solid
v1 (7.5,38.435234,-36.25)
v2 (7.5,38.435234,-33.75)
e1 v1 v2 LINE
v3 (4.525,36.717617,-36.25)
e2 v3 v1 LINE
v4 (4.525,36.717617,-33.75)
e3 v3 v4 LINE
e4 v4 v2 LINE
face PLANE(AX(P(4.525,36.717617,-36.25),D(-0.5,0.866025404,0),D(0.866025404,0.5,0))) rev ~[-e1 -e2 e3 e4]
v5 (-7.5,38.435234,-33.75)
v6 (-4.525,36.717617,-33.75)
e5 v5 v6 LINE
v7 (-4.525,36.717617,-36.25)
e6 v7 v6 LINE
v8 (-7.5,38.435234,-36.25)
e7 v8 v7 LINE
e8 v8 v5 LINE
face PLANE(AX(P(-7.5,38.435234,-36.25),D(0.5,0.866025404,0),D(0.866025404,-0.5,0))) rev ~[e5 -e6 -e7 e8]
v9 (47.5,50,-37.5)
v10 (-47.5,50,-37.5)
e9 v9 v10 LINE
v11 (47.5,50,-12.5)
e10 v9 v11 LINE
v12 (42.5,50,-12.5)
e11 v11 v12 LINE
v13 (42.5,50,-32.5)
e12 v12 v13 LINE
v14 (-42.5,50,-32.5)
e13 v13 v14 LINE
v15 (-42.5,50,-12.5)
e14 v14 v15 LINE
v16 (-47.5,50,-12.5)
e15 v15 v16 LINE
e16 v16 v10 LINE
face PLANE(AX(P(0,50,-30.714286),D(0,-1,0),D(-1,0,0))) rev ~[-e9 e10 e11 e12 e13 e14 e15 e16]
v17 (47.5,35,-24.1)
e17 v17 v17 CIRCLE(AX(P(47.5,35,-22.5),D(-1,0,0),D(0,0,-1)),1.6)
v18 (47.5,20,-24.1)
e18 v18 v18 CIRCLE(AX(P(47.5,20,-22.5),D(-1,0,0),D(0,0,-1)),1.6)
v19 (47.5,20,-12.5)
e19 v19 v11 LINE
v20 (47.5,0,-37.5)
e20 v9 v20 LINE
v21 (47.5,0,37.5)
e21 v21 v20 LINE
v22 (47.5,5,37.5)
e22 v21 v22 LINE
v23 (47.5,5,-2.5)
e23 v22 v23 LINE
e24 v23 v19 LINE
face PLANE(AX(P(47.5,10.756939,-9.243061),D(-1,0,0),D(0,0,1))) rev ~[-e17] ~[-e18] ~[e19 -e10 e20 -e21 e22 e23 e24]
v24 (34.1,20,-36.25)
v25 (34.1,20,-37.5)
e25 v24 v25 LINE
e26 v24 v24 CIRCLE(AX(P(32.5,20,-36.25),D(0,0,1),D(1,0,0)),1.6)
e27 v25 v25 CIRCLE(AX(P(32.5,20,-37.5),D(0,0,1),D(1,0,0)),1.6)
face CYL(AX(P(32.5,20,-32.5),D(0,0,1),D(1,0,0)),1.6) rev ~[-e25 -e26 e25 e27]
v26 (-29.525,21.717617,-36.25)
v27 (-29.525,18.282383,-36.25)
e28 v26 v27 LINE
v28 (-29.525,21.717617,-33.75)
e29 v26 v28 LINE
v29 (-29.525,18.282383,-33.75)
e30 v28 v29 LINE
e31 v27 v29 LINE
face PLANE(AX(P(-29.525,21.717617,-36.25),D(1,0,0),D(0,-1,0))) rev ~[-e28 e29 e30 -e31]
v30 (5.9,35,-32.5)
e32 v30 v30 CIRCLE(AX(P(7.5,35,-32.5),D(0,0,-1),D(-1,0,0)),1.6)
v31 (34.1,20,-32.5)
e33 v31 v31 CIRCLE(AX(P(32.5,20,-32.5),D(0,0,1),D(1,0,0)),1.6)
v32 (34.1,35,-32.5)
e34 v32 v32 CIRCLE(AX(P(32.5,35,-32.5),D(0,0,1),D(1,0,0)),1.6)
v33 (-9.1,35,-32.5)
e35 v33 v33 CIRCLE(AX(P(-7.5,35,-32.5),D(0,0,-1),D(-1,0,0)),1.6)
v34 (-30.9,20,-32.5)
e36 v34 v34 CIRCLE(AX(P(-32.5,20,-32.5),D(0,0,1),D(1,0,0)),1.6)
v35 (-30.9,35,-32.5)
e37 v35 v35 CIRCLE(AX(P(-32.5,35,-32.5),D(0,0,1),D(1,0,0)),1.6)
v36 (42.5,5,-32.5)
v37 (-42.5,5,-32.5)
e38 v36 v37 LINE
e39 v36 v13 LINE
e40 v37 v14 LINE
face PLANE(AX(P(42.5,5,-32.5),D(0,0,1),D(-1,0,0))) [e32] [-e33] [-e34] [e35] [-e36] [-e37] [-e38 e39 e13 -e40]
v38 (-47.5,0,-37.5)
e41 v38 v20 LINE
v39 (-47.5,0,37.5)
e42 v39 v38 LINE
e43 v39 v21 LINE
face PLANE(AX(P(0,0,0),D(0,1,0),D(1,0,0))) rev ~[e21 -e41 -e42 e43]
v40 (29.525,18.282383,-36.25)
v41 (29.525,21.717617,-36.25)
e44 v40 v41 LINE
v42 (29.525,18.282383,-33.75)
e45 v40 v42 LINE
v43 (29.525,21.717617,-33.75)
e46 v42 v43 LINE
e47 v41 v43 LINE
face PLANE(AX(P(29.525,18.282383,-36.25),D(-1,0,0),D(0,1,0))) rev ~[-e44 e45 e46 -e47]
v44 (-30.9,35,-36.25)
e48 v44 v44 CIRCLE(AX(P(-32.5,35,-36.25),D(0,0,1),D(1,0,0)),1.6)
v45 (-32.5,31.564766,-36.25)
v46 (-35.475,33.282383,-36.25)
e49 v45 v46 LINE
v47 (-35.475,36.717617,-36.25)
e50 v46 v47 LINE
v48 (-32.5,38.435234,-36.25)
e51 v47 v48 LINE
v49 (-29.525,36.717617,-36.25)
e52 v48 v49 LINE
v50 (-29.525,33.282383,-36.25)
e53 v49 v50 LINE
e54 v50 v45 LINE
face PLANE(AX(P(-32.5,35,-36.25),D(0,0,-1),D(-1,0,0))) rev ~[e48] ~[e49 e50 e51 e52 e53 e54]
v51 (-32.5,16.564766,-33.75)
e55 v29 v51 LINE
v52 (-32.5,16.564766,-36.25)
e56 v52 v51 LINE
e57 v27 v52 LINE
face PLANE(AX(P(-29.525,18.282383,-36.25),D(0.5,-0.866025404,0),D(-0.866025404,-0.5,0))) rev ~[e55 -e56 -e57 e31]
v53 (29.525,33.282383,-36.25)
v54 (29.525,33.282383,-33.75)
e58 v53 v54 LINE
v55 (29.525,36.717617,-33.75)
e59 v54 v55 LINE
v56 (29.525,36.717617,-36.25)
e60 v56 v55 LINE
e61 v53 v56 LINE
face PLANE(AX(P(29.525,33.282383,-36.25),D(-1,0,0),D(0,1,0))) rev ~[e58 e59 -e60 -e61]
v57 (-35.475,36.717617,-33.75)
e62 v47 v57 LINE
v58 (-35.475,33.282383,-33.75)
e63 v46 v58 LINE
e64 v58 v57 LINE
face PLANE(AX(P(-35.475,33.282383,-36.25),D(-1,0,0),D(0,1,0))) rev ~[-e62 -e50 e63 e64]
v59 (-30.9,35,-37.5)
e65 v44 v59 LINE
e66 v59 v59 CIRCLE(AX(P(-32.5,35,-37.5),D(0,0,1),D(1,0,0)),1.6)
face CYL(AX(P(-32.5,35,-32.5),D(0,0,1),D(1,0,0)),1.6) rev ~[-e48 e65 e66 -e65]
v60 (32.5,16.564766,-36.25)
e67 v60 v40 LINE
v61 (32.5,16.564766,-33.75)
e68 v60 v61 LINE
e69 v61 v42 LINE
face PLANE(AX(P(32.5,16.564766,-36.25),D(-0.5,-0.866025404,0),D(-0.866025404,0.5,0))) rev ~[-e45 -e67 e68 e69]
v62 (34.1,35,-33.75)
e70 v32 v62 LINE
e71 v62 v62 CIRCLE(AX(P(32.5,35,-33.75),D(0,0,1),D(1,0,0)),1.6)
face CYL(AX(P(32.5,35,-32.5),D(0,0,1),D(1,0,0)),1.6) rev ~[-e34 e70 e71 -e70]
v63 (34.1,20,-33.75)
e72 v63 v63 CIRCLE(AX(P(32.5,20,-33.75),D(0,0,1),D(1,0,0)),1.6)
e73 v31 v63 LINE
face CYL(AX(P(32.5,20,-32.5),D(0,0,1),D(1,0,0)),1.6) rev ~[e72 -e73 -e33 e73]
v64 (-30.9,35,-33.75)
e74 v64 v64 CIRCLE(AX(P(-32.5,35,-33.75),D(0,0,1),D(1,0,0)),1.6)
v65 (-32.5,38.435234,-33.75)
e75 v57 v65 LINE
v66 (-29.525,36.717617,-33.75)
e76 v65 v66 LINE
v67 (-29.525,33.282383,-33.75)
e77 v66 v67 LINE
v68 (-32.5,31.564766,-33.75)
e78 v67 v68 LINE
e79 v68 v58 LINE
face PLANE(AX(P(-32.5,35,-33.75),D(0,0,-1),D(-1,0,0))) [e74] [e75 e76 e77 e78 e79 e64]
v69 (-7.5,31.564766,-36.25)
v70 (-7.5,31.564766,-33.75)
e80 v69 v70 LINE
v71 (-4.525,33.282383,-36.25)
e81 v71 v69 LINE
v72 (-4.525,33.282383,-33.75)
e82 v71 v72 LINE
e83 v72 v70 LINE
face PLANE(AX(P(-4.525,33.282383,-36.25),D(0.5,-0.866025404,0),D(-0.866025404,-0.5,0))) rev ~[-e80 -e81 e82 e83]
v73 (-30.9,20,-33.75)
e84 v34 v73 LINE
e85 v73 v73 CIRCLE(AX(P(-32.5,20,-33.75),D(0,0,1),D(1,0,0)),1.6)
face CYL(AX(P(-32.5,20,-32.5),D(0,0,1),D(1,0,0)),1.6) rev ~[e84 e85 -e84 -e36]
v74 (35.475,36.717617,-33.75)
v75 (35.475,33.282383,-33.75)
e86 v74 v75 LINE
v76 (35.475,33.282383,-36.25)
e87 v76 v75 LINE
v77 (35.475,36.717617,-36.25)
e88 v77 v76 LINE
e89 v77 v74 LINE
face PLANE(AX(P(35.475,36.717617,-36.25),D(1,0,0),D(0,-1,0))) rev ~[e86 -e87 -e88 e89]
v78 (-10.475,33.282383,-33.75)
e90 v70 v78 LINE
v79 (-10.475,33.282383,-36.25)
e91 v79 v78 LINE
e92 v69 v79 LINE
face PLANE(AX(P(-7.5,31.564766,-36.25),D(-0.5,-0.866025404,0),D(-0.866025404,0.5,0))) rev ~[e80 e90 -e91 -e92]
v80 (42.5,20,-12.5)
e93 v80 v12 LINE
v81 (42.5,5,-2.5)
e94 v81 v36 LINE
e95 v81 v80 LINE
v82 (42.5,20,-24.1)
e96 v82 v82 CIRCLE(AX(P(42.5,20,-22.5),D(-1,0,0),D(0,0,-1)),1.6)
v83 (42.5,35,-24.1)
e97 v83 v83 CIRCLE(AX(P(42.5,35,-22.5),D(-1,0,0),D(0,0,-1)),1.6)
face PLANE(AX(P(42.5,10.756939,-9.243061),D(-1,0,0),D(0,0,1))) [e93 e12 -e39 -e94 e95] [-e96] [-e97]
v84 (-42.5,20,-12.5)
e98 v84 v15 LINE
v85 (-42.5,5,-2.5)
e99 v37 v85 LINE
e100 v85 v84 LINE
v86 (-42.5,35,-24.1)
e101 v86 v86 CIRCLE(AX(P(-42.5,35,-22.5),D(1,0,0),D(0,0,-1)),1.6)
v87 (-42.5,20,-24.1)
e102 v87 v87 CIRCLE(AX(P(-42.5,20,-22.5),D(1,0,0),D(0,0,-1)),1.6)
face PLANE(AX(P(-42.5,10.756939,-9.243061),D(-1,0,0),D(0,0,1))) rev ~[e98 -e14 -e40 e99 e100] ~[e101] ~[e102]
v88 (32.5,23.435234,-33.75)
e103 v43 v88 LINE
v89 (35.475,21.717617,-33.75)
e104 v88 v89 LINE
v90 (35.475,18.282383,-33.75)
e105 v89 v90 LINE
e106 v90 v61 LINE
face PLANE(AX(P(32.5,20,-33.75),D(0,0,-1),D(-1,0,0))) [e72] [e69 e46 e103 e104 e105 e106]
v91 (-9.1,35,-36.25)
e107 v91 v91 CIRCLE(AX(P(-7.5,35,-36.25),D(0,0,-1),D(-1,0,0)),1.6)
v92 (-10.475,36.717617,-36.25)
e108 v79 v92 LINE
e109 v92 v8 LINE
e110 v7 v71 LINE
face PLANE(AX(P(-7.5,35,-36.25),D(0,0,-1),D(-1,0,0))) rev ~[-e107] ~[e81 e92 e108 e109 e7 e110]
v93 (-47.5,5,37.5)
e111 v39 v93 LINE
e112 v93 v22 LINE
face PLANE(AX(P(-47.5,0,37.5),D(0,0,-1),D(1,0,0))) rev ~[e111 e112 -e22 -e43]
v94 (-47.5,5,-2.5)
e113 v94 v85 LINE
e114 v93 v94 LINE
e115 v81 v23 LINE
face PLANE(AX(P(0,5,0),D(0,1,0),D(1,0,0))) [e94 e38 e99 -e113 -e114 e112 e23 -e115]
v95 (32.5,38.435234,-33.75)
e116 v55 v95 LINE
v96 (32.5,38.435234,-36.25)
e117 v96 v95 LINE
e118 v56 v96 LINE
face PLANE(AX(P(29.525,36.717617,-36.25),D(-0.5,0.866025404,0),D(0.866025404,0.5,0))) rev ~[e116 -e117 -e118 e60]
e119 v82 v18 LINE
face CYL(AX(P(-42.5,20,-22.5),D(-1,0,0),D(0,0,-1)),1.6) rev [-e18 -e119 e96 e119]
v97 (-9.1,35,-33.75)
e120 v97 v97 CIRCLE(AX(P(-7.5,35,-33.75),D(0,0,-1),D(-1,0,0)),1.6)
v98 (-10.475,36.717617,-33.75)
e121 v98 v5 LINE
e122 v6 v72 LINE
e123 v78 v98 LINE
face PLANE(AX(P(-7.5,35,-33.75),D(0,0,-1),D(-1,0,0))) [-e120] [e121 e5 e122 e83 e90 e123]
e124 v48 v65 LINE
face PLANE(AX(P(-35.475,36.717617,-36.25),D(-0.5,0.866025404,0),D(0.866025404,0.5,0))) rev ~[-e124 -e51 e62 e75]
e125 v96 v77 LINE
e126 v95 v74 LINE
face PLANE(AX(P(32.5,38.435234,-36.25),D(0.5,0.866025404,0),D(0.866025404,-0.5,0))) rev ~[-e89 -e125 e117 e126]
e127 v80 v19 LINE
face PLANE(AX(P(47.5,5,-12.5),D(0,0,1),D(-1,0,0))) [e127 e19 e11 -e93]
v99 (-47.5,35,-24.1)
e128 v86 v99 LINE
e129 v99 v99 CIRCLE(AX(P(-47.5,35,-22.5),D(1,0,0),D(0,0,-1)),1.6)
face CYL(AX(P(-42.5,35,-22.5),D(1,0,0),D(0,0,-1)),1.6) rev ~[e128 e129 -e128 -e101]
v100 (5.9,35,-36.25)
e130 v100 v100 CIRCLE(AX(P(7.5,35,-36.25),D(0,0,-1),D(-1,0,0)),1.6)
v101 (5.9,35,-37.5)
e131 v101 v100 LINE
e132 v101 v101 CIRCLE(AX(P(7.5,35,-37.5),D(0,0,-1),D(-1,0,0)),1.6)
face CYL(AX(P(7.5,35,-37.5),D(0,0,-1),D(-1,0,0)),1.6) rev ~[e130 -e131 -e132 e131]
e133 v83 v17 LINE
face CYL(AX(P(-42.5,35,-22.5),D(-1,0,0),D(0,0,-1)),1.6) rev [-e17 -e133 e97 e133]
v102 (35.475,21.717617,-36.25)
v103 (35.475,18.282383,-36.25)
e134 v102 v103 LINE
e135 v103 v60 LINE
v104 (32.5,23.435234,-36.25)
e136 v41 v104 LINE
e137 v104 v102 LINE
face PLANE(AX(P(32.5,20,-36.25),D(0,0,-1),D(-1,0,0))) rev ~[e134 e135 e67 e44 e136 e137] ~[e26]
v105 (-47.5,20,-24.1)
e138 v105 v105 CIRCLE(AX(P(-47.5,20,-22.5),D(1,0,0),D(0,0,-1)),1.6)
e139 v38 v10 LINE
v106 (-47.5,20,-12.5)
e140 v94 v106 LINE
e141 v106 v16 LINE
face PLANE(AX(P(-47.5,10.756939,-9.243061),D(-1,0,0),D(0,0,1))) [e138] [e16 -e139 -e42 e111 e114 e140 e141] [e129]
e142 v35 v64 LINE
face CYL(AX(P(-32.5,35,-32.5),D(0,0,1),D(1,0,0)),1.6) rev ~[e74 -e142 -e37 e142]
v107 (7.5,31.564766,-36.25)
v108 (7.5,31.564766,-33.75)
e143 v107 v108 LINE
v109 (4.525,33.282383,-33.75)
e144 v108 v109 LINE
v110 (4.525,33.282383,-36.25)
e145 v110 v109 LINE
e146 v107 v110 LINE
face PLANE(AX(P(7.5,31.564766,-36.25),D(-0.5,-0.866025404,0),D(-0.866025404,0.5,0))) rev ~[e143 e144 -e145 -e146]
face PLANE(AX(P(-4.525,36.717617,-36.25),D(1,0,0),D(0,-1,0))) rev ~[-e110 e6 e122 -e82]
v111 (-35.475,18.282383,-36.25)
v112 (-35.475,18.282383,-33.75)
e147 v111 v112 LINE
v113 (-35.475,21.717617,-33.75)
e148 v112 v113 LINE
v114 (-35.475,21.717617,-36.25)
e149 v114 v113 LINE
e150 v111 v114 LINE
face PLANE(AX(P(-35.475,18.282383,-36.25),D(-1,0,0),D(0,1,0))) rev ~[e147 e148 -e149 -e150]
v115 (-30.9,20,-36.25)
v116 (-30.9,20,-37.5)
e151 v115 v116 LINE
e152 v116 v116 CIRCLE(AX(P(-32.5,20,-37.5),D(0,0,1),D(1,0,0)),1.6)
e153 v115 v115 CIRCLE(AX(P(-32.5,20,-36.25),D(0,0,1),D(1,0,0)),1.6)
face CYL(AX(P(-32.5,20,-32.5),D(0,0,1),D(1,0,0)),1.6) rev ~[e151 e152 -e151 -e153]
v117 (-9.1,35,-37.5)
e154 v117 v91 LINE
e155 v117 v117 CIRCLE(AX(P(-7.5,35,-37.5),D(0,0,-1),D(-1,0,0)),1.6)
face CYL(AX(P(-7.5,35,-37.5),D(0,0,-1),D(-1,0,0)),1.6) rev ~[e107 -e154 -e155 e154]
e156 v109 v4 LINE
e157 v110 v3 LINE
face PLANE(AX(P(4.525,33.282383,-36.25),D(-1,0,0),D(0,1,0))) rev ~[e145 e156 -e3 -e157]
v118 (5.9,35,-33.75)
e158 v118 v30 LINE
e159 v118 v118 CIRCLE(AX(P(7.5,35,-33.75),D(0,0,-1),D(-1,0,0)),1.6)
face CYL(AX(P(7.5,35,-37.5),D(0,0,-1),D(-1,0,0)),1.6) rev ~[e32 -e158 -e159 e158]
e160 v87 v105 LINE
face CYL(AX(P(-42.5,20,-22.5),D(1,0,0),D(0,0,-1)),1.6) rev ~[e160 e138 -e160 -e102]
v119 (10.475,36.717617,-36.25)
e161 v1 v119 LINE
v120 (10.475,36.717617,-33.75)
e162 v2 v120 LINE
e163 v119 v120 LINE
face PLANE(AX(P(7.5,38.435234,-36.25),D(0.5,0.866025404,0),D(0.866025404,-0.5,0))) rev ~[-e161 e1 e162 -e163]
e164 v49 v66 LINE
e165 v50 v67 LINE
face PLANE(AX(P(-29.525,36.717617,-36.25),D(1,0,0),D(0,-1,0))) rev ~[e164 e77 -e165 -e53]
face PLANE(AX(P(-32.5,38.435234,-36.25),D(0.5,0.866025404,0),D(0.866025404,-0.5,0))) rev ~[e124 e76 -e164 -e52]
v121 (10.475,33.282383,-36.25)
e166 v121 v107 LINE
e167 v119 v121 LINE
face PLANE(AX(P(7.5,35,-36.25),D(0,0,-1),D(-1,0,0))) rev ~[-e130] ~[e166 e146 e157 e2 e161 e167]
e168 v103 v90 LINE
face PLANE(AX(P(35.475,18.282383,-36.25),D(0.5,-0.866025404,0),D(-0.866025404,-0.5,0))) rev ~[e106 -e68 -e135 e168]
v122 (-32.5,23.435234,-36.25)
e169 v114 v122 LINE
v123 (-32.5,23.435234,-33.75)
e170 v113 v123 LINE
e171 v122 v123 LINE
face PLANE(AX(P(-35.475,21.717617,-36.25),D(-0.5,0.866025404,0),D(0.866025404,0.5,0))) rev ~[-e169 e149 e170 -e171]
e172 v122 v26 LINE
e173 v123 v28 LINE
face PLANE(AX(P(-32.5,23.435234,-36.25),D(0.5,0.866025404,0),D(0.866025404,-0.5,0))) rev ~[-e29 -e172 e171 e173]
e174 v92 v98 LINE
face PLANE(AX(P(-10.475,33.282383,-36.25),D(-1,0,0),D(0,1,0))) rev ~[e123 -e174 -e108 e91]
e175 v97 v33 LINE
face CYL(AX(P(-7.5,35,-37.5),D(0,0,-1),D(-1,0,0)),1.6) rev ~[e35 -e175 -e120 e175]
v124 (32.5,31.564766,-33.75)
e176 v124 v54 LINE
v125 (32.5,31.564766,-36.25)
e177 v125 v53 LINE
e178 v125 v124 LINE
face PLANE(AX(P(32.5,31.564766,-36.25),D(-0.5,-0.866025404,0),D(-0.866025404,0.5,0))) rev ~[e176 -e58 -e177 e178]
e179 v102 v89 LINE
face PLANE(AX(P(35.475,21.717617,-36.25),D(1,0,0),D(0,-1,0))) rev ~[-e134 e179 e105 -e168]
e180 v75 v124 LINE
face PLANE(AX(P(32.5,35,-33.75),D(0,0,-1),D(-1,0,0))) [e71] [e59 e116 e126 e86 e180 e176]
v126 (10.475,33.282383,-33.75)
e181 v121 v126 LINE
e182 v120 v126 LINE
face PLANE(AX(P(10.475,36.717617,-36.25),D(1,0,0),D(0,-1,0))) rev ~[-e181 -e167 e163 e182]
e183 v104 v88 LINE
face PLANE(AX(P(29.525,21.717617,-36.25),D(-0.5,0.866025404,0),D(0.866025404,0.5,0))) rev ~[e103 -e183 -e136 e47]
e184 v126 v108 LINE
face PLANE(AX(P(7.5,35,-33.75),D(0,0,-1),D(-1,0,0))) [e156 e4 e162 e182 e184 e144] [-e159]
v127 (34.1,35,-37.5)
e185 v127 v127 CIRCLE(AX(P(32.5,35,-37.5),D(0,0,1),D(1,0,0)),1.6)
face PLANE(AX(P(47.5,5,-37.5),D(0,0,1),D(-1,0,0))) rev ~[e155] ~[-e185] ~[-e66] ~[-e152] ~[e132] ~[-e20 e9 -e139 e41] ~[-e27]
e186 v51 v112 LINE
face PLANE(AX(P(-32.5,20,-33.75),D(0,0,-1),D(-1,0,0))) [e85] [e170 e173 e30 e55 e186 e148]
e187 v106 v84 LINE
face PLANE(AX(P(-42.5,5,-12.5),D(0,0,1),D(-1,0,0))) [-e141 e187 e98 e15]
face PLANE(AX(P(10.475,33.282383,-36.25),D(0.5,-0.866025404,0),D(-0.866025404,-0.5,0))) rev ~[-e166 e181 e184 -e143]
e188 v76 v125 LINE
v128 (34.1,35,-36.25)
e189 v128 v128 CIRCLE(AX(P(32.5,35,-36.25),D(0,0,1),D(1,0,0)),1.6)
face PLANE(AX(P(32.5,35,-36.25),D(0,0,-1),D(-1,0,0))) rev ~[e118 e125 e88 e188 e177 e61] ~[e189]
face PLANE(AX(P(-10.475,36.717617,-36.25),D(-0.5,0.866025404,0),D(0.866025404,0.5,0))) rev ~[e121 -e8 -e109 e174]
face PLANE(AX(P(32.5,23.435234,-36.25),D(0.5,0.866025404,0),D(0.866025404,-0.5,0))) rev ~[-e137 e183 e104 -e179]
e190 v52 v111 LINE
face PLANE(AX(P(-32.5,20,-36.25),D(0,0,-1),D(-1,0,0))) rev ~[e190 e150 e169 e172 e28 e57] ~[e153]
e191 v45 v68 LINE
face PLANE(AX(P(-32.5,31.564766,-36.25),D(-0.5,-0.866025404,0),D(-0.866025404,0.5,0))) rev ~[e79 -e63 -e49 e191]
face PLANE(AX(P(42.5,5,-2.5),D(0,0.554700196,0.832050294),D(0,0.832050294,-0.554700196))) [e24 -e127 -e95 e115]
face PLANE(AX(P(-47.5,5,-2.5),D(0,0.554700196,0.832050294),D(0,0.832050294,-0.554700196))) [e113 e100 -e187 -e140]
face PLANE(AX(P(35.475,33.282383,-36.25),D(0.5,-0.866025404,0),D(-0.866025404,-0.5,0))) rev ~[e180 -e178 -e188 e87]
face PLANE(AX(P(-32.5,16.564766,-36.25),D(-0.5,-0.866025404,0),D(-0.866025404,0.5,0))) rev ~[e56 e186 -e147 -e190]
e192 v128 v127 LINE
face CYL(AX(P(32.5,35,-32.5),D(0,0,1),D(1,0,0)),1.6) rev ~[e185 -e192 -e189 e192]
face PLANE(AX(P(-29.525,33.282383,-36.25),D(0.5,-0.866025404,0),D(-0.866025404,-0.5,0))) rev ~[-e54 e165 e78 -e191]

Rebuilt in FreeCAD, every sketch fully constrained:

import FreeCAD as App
import Part
import Sketcher

V = App.Vector
Q = App.Units.Quantity

doc = App.newDocument("Part")
body = doc.addObject("PartDesign::Body", "Body")

sketch1 = body.newObject("Sketcher::SketchObject", "Sketch")
sketch1.AttachmentSupport = (doc.getObject("XZ_Plane"), [""])
sketch1.MapMode = "FlatFace"
sketch1.addGeometry(Part.LineSegment(V(-48, -38, 0), V(-48, 38, 0)), False)
sketch1.addGeometry(Part.LineSegment(V(-48, 38, 0), V(48, 38, 0)), False)
sketch1.addGeometry(Part.LineSegment(V(48, 38, 0), V(48, -38, 0)), False)
sketch1.addGeometry(Part.LineSegment(V(48, -38, 0), V(-48, -38, 0)), False)
sketch1.addConstraint(Sketcher.Constraint("Coincident", 0, 2, 1, 1))
sketch1.addConstraint(Sketcher.Constraint("Coincident", 1, 2, 2, 1))
sketch1.addConstraint(Sketcher.Constraint("Coincident", 2, 2, 3, 1))
sketch1.addConstraint(Sketcher.Constraint("Coincident", 3, 2, 0, 1))
sketch1.addConstraint(Sketcher.Constraint("Vertical", 0))
sketch1.addConstraint(Sketcher.Constraint("Horizontal", 1))
sketch1.addConstraint(Sketcher.Constraint("Vertical", 2))
sketch1.addConstraint(Sketcher.Constraint("Horizontal", 3))
sketch1.addConstraint(Sketcher.Constraint("Symmetric", 0, 2, 2, 2, -1, 1))
sketch1.addConstraint(Sketcher.Constraint("DistanceX", 1, 1, 1, 2, 95.0))
sketch1.addConstraint(Sketcher.Constraint("DistanceY", 0, 1, 0, 2, 75.0))
pad1 = body.newObject("PartDesign::Pad", "Pad")
pad1.Profile = sketch1
pad1.Length = 5
pad1.Reversed = True

sketch2 = body.newObject("Sketcher::SketchObject", "Sketch001")
sketch2.AttachmentSupport = (doc.getObject("XZ_Plane"), [""])
sketch2.MapMode = "FlatFace"
sketch2.AttachmentOffset = App.Placement(V(0, 0, -5), App.Rotation())
sketch2.addGeometry(Part.LineSegment(V(48, -38, 0), V(-48, -38, 0)), False)
sketch2.addGeometry(Part.LineSegment(V(-48, -38, 0), V(-48, -12, 0)), False)
sketch2.addGeometry(Part.LineSegment(V(-48, -12, 0), V(-42, -12, 0)), False)
sketch2.addGeometry(Part.LineSegment(V(-42, -12, 0), V(-42, -32, 0)), False)
sketch2.addGeometry(Part.LineSegment(V(-42, -32, 0), V(42, -32, 0)), False)
sketch2.addGeometry(Part.LineSegment(V(42, -32, 0), V(42, -12, 0)), False)
sketch2.addGeometry(Part.LineSegment(V(42, -12, 0), V(48, -12, 0)), False)
sketch2.addGeometry(Part.LineSegment(V(48, -12, 0), V(48, -38, 0)), False)
sketch2.addConstraint(Sketcher.Constraint("Coincident", 0, 2, 1, 1))
sketch2.addConstraint(Sketcher.Constraint("Coincident", 1, 2, 2, 1))
sketch2.addConstraint(Sketcher.Constraint("Coincident", 2, 2, 3, 1))
sketch2.addConstraint(Sketcher.Constraint("Coincident", 3, 2, 4, 1))
sketch2.addConstraint(Sketcher.Constraint("Coincident", 4, 2, 5, 1))
sketch2.addConstraint(Sketcher.Constraint("Coincident", 5, 2, 6, 1))
sketch2.addConstraint(Sketcher.Constraint("Coincident", 6, 2, 7, 1))
sketch2.addConstraint(Sketcher.Constraint("Coincident", 7, 2, 0, 1))
sketch2.addConstraint(Sketcher.Constraint("Horizontal", 0))
sketch2.addConstraint(Sketcher.Constraint("Vertical", 1))
sketch2.addConstraint(Sketcher.Constraint("Horizontal", 2))
sketch2.addConstraint(Sketcher.Constraint("Vertical", 3))
sketch2.addConstraint(Sketcher.Constraint("Horizontal", 4))
sketch2.addConstraint(Sketcher.Constraint("Vertical", 5))
sketch2.addConstraint(Sketcher.Constraint("Horizontal", 6))
sketch2.addConstraint(Sketcher.Constraint("Vertical", 7))
sketch2.addConstraint(Sketcher.Constraint("Symmetric", 2, 2, 5, 2, -2))
sketch2.addConstraint(Sketcher.Constraint("Equal", 2, 6))
sketch2.addConstraint(Sketcher.Constraint("DistanceX", 0, 2, 0, 1, 95.0))
sketch2.addConstraint(Sketcher.Constraint("DistanceX", 2, 1, 2, 2, 5.0))
sketch2.addConstraint(Sketcher.Constraint("DistanceY", 1, 1, 1, 2, 25.0))
sketch2.addConstraint(Sketcher.Constraint("DistanceY", 3, 2, 3, 1, 20.0))
sketch2.addConstraint(Sketcher.Constraint("DistanceY", 0, 2, -1, 1, 37.5))
pad2 = body.newObject("PartDesign::Pad", "Pad001")
pad2.Profile = sketch2
pad2.Length = 45
pad2.Reversed = True

sketch3 = body.newObject("Sketcher::SketchObject", "Sketch002")
sketch3.AttachmentSupport = (doc.getObject("YZ_Plane"), [""])
sketch3.MapMode = "FlatFace"
sketch3.AttachmentOffset = App.Placement(V(0, 0, -42.5), App.Rotation())
sketch3.addGeometry(Part.Circle(V(35, -22.5, 0), V(0, 0, 1), 1.6), False)
sketch3.addGeometry(Part.Circle(V(20, -22.5, 0), V(0, 0, 1), 1.6), False)
sketch3.addConstraint(Sketcher.Constraint("Equal", 0, 1))
sketch3.addConstraint(Sketcher.Constraint("Horizontal", 0, 3, 1, 3))
sketch3.addConstraint(Sketcher.Constraint("Diameter", 0, 3.2))
sketch3.addConstraint(Sketcher.Constraint("DistanceX", -1, 1, 0, 3, 35.0))
sketch3.addConstraint(Sketcher.Constraint("DistanceX", -1, 1, 1, 3, 20.0))
sketch3.addConstraint(Sketcher.Constraint("DistanceY", 0, 3, -1, 1, 22.5))
pocket1 = body.newObject("PartDesign::Pocket", "Pocket")
pocket1.Profile = sketch3
pocket1.Type = "ThroughAll"
pocket1.Midplane = True

sketch4 = body.newObject("Sketcher::SketchObject", "Sketch003")
sketch4.AttachmentSupport = (doc.getObject("XY_Plane"), [""])
sketch4.MapMode = "FlatFace"
sketch4.AttachmentOffset = App.Placement(V(0, 0, -32.5), App.Rotation())
sketch4.addGeometry(Part.Circle(V(-32.5, 35, 0), V(0, 0, 1), 1.6), False)
sketch4.addConstraint(Sketcher.Constraint("Diameter", 0, 3.2))
sketch4.addConstraint(Sketcher.Constraint("DistanceY", -1, 1, 0, 3, 35.0))
sketch4.addConstraint(Sketcher.Constraint("DistanceX", 0, 3, -1, 1, 32.5))
pocket2 = body.newObject("PartDesign::Pocket", "Pocket001")
pocket2.Profile = sketch4
pocket2.Type = "UpToFirst"

sketch5 = body.newObject("Sketcher::SketchObject", "Sketch004")
sketch5.AttachmentSupport = (doc.getObject("XY_Plane"), [""])
sketch5.MapMode = "FlatFace"
sketch5.AttachmentOffset = App.Placement(V(0, 0, -32.5), App.Rotation())
sketch5.addGeometry(Part.Circle(V(-32.5, 20, 0), V(0, 0, 1), 1.6), False)
sketch5.addConstraint(Sketcher.Constraint("Diameter", 0, 3.2))
sketch5.addConstraint(Sketcher.Constraint("DistanceY", -1, 1, 0, 3, 20.0))
sketch5.addConstraint(Sketcher.Constraint("DistanceX", 0, 3, -1, 1, 32.5))
pocket3 = body.newObject("PartDesign::Pocket", "Pocket002")
pocket3.Profile = sketch5
pocket3.Type = "UpToFirst"

sketch6 = body.newObject("Sketcher::SketchObject", "Sketch005")
sketch6.AttachmentSupport = (doc.getObject("XY_Plane"), [""])
sketch6.MapMode = "FlatFace"
sketch6.AttachmentOffset = App.Placement(V(0, 0, -32.5), App.Rotation())
sketch6.addGeometry(Part.Circle(V(32.5, 20, 0), V(0, 0, 1), 1.6), False)
sketch6.addConstraint(Sketcher.Constraint("Diameter", 0, 3.2))
sketch6.addConstraint(Sketcher.Constraint("DistanceY", -1, 1, 0, 3, 20.0))
sketch6.addConstraint(Sketcher.Constraint("DistanceX", -1, 1, 0, 3, 32.5))
pocket4 = body.newObject("PartDesign::Pocket", "Pocket003")
pocket4.Profile = sketch6
pocket4.Type = "UpToFirst"

sketch7 = body.newObject("Sketcher::SketchObject", "Sketch006")
sketch7.AttachmentSupport = (doc.getObject("XY_Plane"), [""])
sketch7.MapMode = "FlatFace"
sketch7.AttachmentOffset = App.Placement(V(0, 0, -32.5), App.Rotation())
sketch7.addGeometry(Part.Circle(V(32.5, 35, 0), V(0, 0, 1), 1.6), False)
sketch7.addConstraint(Sketcher.Constraint("Diameter", 0, 3.2))
sketch7.addConstraint(Sketcher.Constraint("DistanceY", -1, 1, 0, 3, 35.0))
sketch7.addConstraint(Sketcher.Constraint("DistanceX", -1, 1, 0, 3, 32.5))
pocket5 = body.newObject("PartDesign::Pocket", "Pocket004")
pocket5.Profile = sketch7
pocket5.Type = "UpToFirst"

sketch8 = body.newObject("Sketcher::SketchObject", "Sketch007")
sketch8.AttachmentSupport = (doc.getObject("YZ_Plane"), [""])
sketch8.MapMode = "FlatFace"
sketch8.AttachmentOffset = App.Placement(V(0, 0, -47.5), App.Rotation())
sketch8.addGeometry(Part.LineSegment(V(5, -12, 0), V(5, -2, 0)), False)
sketch8.addGeometry(Part.LineSegment(V(5, -2, 0), V(20, -12, 0)), False)
sketch8.addGeometry(Part.LineSegment(V(20, -12, 0), V(5, -12, 0)), False)
sketch8.addConstraint(Sketcher.Constraint("Coincident", 0, 2, 1, 1))
sketch8.addConstraint(Sketcher.Constraint("Coincident", 1, 2, 2, 1))
sketch8.addConstraint(Sketcher.Constraint("Coincident", 2, 2, 0, 1))
sketch8.addConstraint(Sketcher.Constraint("Vertical", 0))
sketch8.addConstraint(Sketcher.Constraint("Horizontal", 2))
sketch8.addConstraint(Sketcher.Constraint("DistanceX", 2, 2, 2, 1, 15.0))
sketch8.addConstraint(Sketcher.Constraint("DistanceY", 0, 1, 0, 2, 10.0))
sketch8.addConstraint(Sketcher.Constraint("DistanceX", -1, 1, 0, 2, 5.0))
sketch8.addConstraint(Sketcher.Constraint("DistanceY", 0, 2, -1, 1, 2.5))
pad3 = body.newObject("PartDesign::Pad", "Pad002")
pad3.Profile = sketch8
pad3.Length = 5

sketch9 = body.newObject("Sketcher::SketchObject", "Sketch008")
sketch9.AttachmentSupport = (doc.getObject("YZ_Plane"), [""])
sketch9.MapMode = "FlatFace"
sketch9.AttachmentOffset = App.Placement(V(0, 0, 42.5), App.Rotation())
sketch9.addGeometry(Part.LineSegment(V(5, -12, 0), V(5, -2, 0)), False)
sketch9.addGeometry(Part.LineSegment(V(5, -2, 0), V(20, -12, 0)), False)
sketch9.addGeometry(Part.LineSegment(V(20, -12, 0), V(5, -12, 0)), False)
sketch9.addConstraint(Sketcher.Constraint("Coincident", 0, 2, 1, 1))
sketch9.addConstraint(Sketcher.Constraint("Coincident", 1, 2, 2, 1))
sketch9.addConstraint(Sketcher.Constraint("Coincident", 2, 2, 0, 1))
sketch9.addConstraint(Sketcher.Constraint("Vertical", 0))
sketch9.addConstraint(Sketcher.Constraint("Horizontal", 2))
sketch9.addConstraint(Sketcher.Constraint("DistanceX", 2, 2, 2, 1, 15.0))
sketch9.addConstraint(Sketcher.Constraint("DistanceY", 0, 1, 0, 2, 10.0))
sketch9.addConstraint(Sketcher.Constraint("DistanceX", -1, 1, 0, 2, 5.0))
sketch9.addConstraint(Sketcher.Constraint("DistanceY", 0, 2, -1, 1, 2.5))
pad4 = body.newObject("PartDesign::Pad", "Pad003")
pad4.Profile = sketch9
pad4.Length = 5

sketch10 = body.newObject("Sketcher::SketchObject", "Sketch009")
sketch10.AttachmentSupport = (doc.getObject("XY_Plane"), [""])
sketch10.MapMode = "FlatFace"
sketch10.AttachmentOffset = App.Placement(V(0, 0, -37.5), App.Rotation())
sketch10.addGeometry(Part.Circle(V(7.5, 35, 0), V(0, 0, 1), 1.6), False)
sketch10.addConstraint(Sketcher.Constraint("Diameter", 0, 3.2))
sketch10.addConstraint(Sketcher.Constraint("DistanceY", -1, 1, 0, 3, 35.0))
sketch10.addConstraint(Sketcher.Constraint("DistanceX", -1, 1, 0, 3, 7.5))
pocket6 = body.newObject("PartDesign::Pocket", "Pocket005")
pocket6.Profile = sketch10
pocket6.Type = "UpToFirst"
pocket6.Reversed = True

sketch11 = body.newObject("Sketcher::SketchObject", "Sketch010")
sketch11.AttachmentSupport = (doc.getObject("XY_Plane"), [""])
sketch11.MapMode = "FlatFace"
sketch11.AttachmentOffset = App.Placement(V(0, 0, -37.5), App.Rotation())
sketch11.addGeometry(Part.Circle(V(-7.5, 35, 0), V(0, 0, 1), 1.6), False)
sketch11.addConstraint(Sketcher.Constraint("Diameter", 0, 3.2))
sketch11.addConstraint(Sketcher.Constraint("DistanceY", -1, 1, 0, 3, 35.0))
sketch11.addConstraint(Sketcher.Constraint("DistanceX", 0, 3, -1, 1, 7.5))
pocket7 = body.newObject("PartDesign::Pocket", "Pocket006")
pocket7.Profile = sketch11
pocket7.Type = "UpToFirst"
pocket7.Reversed = True

sketch12 = body.newObject("Sketcher::SketchObject", "Sketch011")
sketch12.AttachmentSupport = (doc.getObject("XY_Plane"), [""])
sketch12.MapMode = "FlatFace"
sketch12.AttachmentOffset = App.Placement(V(0, 0, -36.25), App.Rotation())
sketch12.addGeometry(Part.LineSegment(V(32.5, 38.4, 0), V(35.5, 36.7, 0)), False)
sketch12.addGeometry(Part.LineSegment(V(35.5, 36.7, 0), V(35.5, 33.3, 0)), False)
sketch12.addGeometry(Part.LineSegment(V(35.5, 33.3, 0), V(32.5, 31.6, 0)), False)
sketch12.addGeometry(Part.LineSegment(V(32.5, 31.6, 0), V(29.5, 33.3, 0)), False)
sketch12.addGeometry(Part.LineSegment(V(29.5, 33.3, 0), V(29.5, 36.7, 0)), False)
sketch12.addGeometry(Part.LineSegment(V(29.5, 36.7, 0), V(32.5, 38.4, 0)), False)
sketch12.addGeometry(Part.LineSegment(V(7.5, 38.4, 0), V(10.5, 36.7, 0)), False)
sketch12.addGeometry(Part.LineSegment(V(10.5, 36.7, 0), V(10.5, 33.3, 0)), False)
sketch12.addGeometry(Part.LineSegment(V(10.5, 33.3, 0), V(7.5, 31.6, 0)), False)
sketch12.addGeometry(Part.LineSegment(V(7.5, 31.6, 0), V(4.5, 33.3, 0)), False)
sketch12.addGeometry(Part.LineSegment(V(4.5, 33.3, 0), V(4.5, 36.7, 0)), False)
sketch12.addGeometry(Part.LineSegment(V(4.5, 36.7, 0), V(7.5, 38.4, 0)), False)
sketch12.addGeometry(Part.LineSegment(V(-7.5, 38.4, 0), V(-4.5, 36.7, 0)), False)
sketch12.addGeometry(Part.LineSegment(V(-4.5, 36.7, 0), V(-4.5, 33.3, 0)), False)
sketch12.addGeometry(Part.LineSegment(V(-4.5, 33.3, 0), V(-7.5, 31.6, 0)), False)
sketch12.addGeometry(Part.LineSegment(V(-7.5, 31.6, 0), V(-10.5, 33.3, 0)), False)
sketch12.addGeometry(Part.LineSegment(V(-10.5, 33.3, 0), V(-10.5, 36.7, 0)), False)
sketch12.addGeometry(Part.LineSegment(V(-10.5, 36.7, 0), V(-7.5, 38.4, 0)), False)
sketch12.addGeometry(Part.LineSegment(V(-32.5, 38.4, 0), V(-29.5, 36.7, 0)), False)
sketch12.addGeometry(Part.LineSegment(V(-29.5, 36.7, 0), V(-29.5, 33.3, 0)), False)
sketch12.addGeometry(Part.LineSegment(V(-29.5, 33.3, 0), V(-32.5, 31.6, 0)), False)
sketch12.addGeometry(Part.LineSegment(V(-32.5, 31.6, 0), V(-35.5, 33.3, 0)), False)
sketch12.addGeometry(Part.LineSegment(V(-35.5, 33.3, 0), V(-35.5, 36.7, 0)), False)
sketch12.addGeometry(Part.LineSegment(V(-35.5, 36.7, 0), V(-32.5, 38.4, 0)), False)
sketch12.addGeometry(Part.LineSegment(V(-32.5, 23.4, 0), V(-29.5, 21.7, 0)), False)
sketch12.addGeometry(Part.LineSegment(V(-29.5, 21.7, 0), V(-29.5, 18.3, 0)), False)
sketch12.addGeometry(Part.LineSegment(V(-29.5, 18.3, 0), V(-32.5, 16.6, 0)), False)
sketch12.addGeometry(Part.LineSegment(V(-32.5, 16.6, 0), V(-35.5, 18.3, 0)), False)
sketch12.addGeometry(Part.LineSegment(V(-35.5, 18.3, 0), V(-35.5, 21.7, 0)), False)
sketch12.addGeometry(Part.LineSegment(V(-35.5, 21.7, 0), V(-32.5, 23.4, 0)), False)
sketch12.addGeometry(Part.LineSegment(V(32.5, 23.4, 0), V(35.5, 21.7, 0)), False)
sketch12.addGeometry(Part.LineSegment(V(35.5, 21.7, 0), V(35.5, 18.3, 0)), False)
sketch12.addGeometry(Part.LineSegment(V(35.5, 18.3, 0), V(32.5, 16.6, 0)), False)
sketch12.addGeometry(Part.LineSegment(V(32.5, 16.6, 0), V(29.5, 18.3, 0)), False)
sketch12.addGeometry(Part.LineSegment(V(29.5, 18.3, 0), V(29.5, 21.7, 0)), False)
sketch12.addGeometry(Part.LineSegment(V(29.5, 21.7, 0), V(32.5, 23.4, 0)), False)
sketch12.addConstraint(Sketcher.Constraint("Coincident", 0, 2, 1, 1))
sketch12.addConstraint(Sketcher.Constraint("Coincident", 1, 2, 2, 1))
sketch12.addConstraint(Sketcher.Constraint("Coincident", 2, 2, 3, 1))
sketch12.addConstraint(Sketcher.Constraint("Coincident", 3, 2, 4, 1))
sketch12.addConstraint(Sketcher.Constraint("Coincident", 4, 2, 5, 1))
sketch12.addConstraint(Sketcher.Constraint("Coincident", 5, 2, 0, 1))
sketch12.addConstraint(Sketcher.Constraint("Coincident", 6, 2, 7, 1))
sketch12.addConstraint(Sketcher.Constraint("Coincident", 7, 2, 8, 1))
sketch12.addConstraint(Sketcher.Constraint("Coincident", 8, 2, 9, 1))
sketch12.addConstraint(Sketcher.Constraint("Coincident", 9, 2, 10, 1))
sketch12.addConstraint(Sketcher.Constraint("Coincident", 10, 2, 11, 1))
sketch12.addConstraint(Sketcher.Constraint("Coincident", 11, 2, 6, 1))
sketch12.addConstraint(Sketcher.Constraint("Coincident", 12, 2, 13, 1))
sketch12.addConstraint(Sketcher.Constraint("Coincident", 13, 2, 14, 1))
sketch12.addConstraint(Sketcher.Constraint("Coincident", 14, 2, 15, 1))
sketch12.addConstraint(Sketcher.Constraint("Coincident", 15, 2, 16, 1))
sketch12.addConstraint(Sketcher.Constraint("Coincident", 16, 2, 17, 1))
sketch12.addConstraint(Sketcher.Constraint("Coincident", 17, 2, 12, 1))
sketch12.addConstraint(Sketcher.Constraint("Coincident", 18, 2, 19, 1))
sketch12.addConstraint(Sketcher.Constraint("Coincident", 19, 2, 20, 1))
sketch12.addConstraint(Sketcher.Constraint("Coincident", 20, 2, 21, 1))
sketch12.addConstraint(Sketcher.Constraint("Coincident", 21, 2, 22, 1))
sketch12.addConstraint(Sketcher.Constraint("Coincident", 22, 2, 23, 1))
sketch12.addConstraint(Sketcher.Constraint("Coincident", 23, 2, 18, 1))
sketch12.addConstraint(Sketcher.Constraint("Coincident", 24, 2, 25, 1))
sketch12.addConstraint(Sketcher.Constraint("Coincident", 25, 2, 26, 1))
sketch12.addConstraint(Sketcher.Constraint("Coincident", 26, 2, 27, 1))
sketch12.addConstraint(Sketcher.Constraint("Coincident", 27, 2, 28, 1))
sketch12.addConstraint(Sketcher.Constraint("Coincident", 28, 2, 29, 1))
sketch12.addConstraint(Sketcher.Constraint("Coincident", 29, 2, 24, 1))
sketch12.addConstraint(Sketcher.Constraint("Coincident", 30, 2, 31, 1))
sketch12.addConstraint(Sketcher.Constraint("Coincident", 31, 2, 32, 1))
sketch12.addConstraint(Sketcher.Constraint("Coincident", 32, 2, 33, 1))
sketch12.addConstraint(Sketcher.Constraint("Coincident", 33, 2, 34, 1))
sketch12.addConstraint(Sketcher.Constraint("Coincident", 34, 2, 35, 1))
sketch12.addConstraint(Sketcher.Constraint("Coincident", 35, 2, 30, 1))
sketch12.addConstraint(Sketcher.Constraint("Vertical", 1))
sketch12.addConstraint(Sketcher.Constraint("Vertical", 4))
sketch12.addConstraint(Sketcher.Constraint("Vertical", 7))
sketch12.addConstraint(Sketcher.Constraint("Vertical", 10))
sketch12.addConstraint(Sketcher.Constraint("Vertical", 13))
sketch12.addConstraint(Sketcher.Constraint("Vertical", 16))
sketch12.addConstraint(Sketcher.Constraint("Vertical", 19))
sketch12.addConstraint(Sketcher.Constraint("Vertical", 22))
sketch12.addConstraint(Sketcher.Constraint("Vertical", 25))
sketch12.addConstraint(Sketcher.Constraint("Vertical", 28))
sketch12.addConstraint(Sketcher.Constraint("Vertical", 31))
sketch12.addConstraint(Sketcher.Constraint("Vertical", 34))
sketch12.addConstraint(Sketcher.Constraint("Symmetric", 10, 2, 12, 2, -2))
sketch12.addConstraint(Sketcher.Constraint("Symmetric", 8, 2, 14, 2, -2))
sketch12.addConstraint(Sketcher.Constraint("Symmetric", 7, 2, 15, 2, -2))
sketch12.addConstraint(Sketcher.Constraint("Symmetric", 11, 2, 17, 2, -2))
sketch12.addConstraint(Sketcher.Constraint("Symmetric", 4, 2, 18, 2, -2))
sketch12.addConstraint(Sketcher.Constraint("Symmetric", 2, 2, 20, 2, -2))
sketch12.addConstraint(Sketcher.Constraint("Symmetric", 1, 2, 21, 2, -2))
sketch12.addConstraint(Sketcher.Constraint("Symmetric", 5, 2, 23, 2, -2))
sketch12.addConstraint(Sketcher.Constraint("Symmetric", 28, 2, 30, 2, -2))
sketch12.addConstraint(Sketcher.Constraint("Symmetric", 26, 2, 32, 2, -2))
sketch12.addConstraint(Sketcher.Constraint("Symmetric", 25, 2, 33, 2, -2))
sketch12.addConstraint(Sketcher.Constraint("Symmetric", 29, 2, 35, 2, -2))
sketch12.addConstraint(Sketcher.Constraint("Parallel", 0, 3))
sketch12.addConstraint(Sketcher.Constraint("Parallel", 2, 5))
sketch12.addConstraint(Sketcher.Constraint("Parallel", 3, 6))
sketch12.addConstraint(Sketcher.Constraint("Parallel", 5, 8))
sketch12.addConstraint(Sketcher.Constraint("Parallel", 6, 9))
sketch12.addConstraint(Sketcher.Constraint("Parallel", 8, 11))
sketch12.addConstraint(Sketcher.Constraint("Parallel", 9, 12))
sketch12.addConstraint(Sketcher.Constraint("Parallel", 11, 14))
sketch12.addConstraint(Sketcher.Constraint("Parallel", 14, 17))
sketch12.addConstraint(Sketcher.Constraint("Parallel", 17, 20))
sketch12.addConstraint(Sketcher.Constraint("Parallel", 20, 23))
sketch12.addConstraint(Sketcher.Constraint("Parallel", 21, 24))
sketch12.addConstraint(Sketcher.Constraint("Parallel", 23, 26))
sketch12.addConstraint(Sketcher.Constraint("Parallel", 24, 27))
sketch12.addConstraint(Sketcher.Constraint("Parallel", 26, 29))
sketch12.addConstraint(Sketcher.Constraint("Parallel", 29, 32))
sketch12.addConstraint(Sketcher.Constraint("Parallel", 32, 35))
sketch12.addConstraint(Sketcher.Constraint("Horizontal", 1, 2, 3, 2))
sketch12.addConstraint(Sketcher.Constraint("Horizontal", 0, 2, 4, 2))
sketch12.addConstraint(Sketcher.Constraint("Horizontal", 4, 2, 6, 2))
sketch12.addConstraint(Sketcher.Constraint("Horizontal", 3, 2, 7, 2))
sketch12.addConstraint(Sketcher.Constraint("Horizontal", 2, 2, 8, 2))
sketch12.addConstraint(Sketcher.Constraint("Horizontal", 7, 2, 9, 2))
sketch12.addConstraint(Sketcher.Constraint("Horizontal", 6, 2, 10, 2))
sketch12.addConstraint(Sketcher.Constraint("Horizontal", 25, 2, 27, 2))
sketch12.addConstraint(Sketcher.Constraint("Horizontal", 24, 2, 28, 2))
sketch12.addConstraint(Sketcher.Constraint("Vertical", 19, 2, 24, 2))
sketch12.addConstraint(Sketcher.Constraint("Vertical", 23, 2, 26, 2))
sketch12.addConstraint(Sketcher.Constraint("Equal", 22, 25))
sketch12.addConstraint(Sketcher.Constraint("Angle", 0, Q("-30 deg")))
sketch12.addConstraint(Sketcher.Constraint("DistanceX", 6, 2, 0, 2, 25.0))
sketch12.addConstraint(Sketcher.Constraint("DistanceX", 12, 2, 6, 2, 15.0))
sketch12.addConstraint(Sketcher.Constraint("DistanceY", 24, 2, 18, 2, 15.0))
sketch12.addConstraint(Sketcher.Constraint("DistanceX", 3, 2, 1, 2, 5.95))
sketch12.addConstraint(Sketcher.Constraint("DistanceY", 1, 2, 1, 1, 3.435234))
sketch12.addConstraint(Sketcher.Constraint("DistanceY", -1, 1, 0, 2, 36.717617))
pocket8 = body.newObject("PartDesign::Pocket", "Pocket007")
pocket8.Profile = sketch12
pocket8.Length = 2.5
pocket8.Reversed = True

doc.recompute()
